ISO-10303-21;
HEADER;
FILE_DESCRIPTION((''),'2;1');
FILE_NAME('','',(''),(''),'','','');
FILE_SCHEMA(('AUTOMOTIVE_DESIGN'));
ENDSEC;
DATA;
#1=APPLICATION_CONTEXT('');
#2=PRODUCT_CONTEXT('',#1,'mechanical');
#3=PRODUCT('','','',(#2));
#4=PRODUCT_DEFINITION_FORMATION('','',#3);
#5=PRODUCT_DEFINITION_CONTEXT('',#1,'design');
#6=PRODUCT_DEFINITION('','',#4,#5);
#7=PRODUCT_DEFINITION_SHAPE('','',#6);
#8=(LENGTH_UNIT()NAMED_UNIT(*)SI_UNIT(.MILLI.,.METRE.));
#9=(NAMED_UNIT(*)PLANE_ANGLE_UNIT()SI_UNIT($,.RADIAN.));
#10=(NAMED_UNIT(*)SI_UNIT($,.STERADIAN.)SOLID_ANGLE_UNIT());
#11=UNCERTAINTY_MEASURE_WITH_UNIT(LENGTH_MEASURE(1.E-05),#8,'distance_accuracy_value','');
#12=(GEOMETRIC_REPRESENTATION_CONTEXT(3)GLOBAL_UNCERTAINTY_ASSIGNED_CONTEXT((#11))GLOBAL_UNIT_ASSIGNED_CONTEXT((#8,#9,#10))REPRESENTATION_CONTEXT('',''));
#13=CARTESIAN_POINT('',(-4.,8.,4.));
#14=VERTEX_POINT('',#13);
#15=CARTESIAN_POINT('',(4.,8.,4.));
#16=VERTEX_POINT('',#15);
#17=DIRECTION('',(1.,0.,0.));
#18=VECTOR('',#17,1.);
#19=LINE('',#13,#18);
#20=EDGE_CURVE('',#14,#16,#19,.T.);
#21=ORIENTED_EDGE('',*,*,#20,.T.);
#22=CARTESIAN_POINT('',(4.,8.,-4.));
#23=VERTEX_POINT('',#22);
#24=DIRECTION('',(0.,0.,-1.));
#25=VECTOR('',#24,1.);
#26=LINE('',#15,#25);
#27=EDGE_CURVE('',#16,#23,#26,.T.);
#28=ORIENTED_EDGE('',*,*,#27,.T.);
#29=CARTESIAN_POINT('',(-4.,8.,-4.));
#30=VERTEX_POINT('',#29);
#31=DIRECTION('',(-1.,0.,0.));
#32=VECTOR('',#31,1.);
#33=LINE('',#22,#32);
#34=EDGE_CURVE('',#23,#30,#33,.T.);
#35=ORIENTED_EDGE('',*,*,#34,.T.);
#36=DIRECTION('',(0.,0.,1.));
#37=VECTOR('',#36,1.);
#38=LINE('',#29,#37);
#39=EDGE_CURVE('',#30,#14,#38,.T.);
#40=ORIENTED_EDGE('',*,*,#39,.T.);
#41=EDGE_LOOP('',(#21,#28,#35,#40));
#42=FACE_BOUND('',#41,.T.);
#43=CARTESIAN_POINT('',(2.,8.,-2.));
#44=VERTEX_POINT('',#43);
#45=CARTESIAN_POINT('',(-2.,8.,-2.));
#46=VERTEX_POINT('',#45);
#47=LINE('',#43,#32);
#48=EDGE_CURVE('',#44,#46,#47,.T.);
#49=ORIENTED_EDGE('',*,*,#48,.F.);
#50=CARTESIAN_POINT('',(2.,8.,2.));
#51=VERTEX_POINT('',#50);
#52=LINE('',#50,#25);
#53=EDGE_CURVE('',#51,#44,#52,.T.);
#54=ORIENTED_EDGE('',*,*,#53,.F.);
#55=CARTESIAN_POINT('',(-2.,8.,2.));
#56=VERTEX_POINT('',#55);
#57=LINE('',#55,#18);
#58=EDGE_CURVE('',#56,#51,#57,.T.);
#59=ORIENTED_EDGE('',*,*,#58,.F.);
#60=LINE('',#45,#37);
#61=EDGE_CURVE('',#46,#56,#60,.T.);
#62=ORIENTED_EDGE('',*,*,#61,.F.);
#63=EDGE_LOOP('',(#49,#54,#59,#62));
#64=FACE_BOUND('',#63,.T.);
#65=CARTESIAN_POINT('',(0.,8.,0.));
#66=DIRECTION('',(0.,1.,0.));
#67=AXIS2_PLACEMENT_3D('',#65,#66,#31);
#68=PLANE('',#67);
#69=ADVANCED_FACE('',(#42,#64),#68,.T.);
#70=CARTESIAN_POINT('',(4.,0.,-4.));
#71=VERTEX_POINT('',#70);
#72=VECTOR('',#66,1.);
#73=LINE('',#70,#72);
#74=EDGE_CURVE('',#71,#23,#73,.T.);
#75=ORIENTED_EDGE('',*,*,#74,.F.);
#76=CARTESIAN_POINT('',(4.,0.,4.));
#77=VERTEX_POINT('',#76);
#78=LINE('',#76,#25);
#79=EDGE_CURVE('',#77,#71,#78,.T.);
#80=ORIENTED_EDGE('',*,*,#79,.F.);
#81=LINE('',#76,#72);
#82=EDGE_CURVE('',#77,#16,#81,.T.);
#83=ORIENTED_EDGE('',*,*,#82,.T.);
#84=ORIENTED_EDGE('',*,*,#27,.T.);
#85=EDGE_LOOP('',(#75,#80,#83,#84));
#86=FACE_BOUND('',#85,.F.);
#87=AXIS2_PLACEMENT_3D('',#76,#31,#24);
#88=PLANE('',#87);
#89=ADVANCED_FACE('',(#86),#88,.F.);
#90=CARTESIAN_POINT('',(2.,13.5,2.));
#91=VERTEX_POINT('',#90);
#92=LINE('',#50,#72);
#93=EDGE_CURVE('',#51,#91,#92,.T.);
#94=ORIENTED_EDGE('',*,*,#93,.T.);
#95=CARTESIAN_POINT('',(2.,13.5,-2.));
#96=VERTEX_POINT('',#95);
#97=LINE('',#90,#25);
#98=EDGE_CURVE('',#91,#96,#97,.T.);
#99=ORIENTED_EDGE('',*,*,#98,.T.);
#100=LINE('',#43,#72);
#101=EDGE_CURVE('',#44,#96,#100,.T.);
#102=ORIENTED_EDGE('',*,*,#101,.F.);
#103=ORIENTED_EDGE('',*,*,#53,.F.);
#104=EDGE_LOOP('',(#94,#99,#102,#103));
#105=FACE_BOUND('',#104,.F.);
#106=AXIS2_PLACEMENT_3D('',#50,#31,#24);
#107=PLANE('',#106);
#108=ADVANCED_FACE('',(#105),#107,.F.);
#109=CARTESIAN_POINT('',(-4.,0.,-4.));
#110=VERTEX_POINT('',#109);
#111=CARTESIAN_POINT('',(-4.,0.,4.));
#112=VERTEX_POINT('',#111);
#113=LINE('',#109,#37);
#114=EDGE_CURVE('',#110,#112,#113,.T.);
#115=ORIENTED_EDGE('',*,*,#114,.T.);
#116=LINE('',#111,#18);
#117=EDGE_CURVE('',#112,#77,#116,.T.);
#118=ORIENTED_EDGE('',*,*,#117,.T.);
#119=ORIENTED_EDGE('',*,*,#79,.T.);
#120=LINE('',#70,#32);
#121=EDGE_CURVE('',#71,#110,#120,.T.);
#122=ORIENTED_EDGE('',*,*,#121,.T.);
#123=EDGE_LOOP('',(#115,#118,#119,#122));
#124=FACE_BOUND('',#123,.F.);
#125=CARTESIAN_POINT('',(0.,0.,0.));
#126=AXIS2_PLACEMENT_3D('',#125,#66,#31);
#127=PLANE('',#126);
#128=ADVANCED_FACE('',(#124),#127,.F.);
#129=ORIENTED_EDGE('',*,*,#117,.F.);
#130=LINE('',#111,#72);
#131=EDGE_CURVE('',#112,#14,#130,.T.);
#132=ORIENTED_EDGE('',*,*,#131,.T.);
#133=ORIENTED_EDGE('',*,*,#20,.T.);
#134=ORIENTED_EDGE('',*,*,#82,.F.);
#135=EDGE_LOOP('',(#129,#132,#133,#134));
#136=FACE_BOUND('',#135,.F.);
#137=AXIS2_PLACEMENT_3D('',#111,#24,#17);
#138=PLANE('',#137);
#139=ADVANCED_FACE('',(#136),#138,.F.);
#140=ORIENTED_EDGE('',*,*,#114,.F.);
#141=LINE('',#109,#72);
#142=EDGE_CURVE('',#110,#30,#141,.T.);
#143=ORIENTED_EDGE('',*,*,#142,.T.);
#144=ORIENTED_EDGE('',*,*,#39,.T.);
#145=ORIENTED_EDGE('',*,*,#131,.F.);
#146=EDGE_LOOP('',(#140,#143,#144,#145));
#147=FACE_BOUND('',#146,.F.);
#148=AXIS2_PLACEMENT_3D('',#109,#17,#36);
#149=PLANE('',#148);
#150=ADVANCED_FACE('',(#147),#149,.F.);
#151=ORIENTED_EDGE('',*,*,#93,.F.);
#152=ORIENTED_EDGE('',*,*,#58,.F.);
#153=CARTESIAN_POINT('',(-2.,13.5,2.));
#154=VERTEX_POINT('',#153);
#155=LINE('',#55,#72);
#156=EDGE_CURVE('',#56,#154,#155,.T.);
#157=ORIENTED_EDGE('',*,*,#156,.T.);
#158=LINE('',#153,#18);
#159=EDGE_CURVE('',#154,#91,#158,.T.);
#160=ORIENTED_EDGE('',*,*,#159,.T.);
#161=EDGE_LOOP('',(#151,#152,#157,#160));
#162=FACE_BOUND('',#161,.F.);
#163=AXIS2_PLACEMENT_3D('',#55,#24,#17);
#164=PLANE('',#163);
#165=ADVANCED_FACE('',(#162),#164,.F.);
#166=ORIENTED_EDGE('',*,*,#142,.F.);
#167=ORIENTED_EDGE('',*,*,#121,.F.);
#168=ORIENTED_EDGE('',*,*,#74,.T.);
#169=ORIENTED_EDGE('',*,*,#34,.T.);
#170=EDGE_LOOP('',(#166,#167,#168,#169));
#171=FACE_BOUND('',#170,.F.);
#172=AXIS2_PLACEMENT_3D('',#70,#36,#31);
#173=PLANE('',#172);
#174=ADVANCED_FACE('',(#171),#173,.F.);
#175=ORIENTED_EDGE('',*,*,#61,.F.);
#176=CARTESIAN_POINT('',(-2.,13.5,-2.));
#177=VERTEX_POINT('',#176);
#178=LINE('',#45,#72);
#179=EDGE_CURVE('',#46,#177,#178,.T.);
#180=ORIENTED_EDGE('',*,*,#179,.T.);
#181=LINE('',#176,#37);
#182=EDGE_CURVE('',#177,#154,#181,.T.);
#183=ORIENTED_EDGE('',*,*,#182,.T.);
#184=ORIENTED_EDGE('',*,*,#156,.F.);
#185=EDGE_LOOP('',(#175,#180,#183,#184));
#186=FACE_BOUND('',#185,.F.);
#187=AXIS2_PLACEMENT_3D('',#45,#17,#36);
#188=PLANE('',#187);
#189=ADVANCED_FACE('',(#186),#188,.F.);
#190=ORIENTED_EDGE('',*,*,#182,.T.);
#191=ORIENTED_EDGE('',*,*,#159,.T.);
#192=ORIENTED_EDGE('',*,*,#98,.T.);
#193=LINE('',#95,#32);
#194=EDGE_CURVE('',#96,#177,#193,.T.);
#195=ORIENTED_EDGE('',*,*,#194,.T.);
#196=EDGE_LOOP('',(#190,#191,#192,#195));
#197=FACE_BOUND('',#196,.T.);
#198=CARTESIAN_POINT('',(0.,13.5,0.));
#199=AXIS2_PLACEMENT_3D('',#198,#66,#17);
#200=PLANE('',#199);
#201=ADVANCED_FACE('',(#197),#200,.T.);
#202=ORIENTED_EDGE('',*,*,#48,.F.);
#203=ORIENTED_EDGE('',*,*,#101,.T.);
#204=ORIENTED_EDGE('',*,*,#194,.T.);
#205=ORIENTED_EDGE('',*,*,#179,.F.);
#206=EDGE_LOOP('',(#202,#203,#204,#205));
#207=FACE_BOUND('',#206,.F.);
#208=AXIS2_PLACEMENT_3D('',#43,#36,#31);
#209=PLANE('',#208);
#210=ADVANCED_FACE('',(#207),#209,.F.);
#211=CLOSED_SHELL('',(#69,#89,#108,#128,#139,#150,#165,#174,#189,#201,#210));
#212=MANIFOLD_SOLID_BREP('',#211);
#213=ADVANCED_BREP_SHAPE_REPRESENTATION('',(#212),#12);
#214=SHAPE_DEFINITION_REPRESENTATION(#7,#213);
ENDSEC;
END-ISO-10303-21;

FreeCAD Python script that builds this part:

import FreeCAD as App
import Part
import Sketcher
from FreeCAD import Vector

doc = App.newDocument("Part")
body = doc.addObject("PartDesign::Body", "Body")

# Sketch on XZ plane
sketch1 = body.newObject("Sketcher::SketchObject", "Sketch")
sketch1.AttachmentSupport = (doc.getObject("XZ_Plane"), [""])
sketch1.MapMode = "FlatFace"
sketch1.addGeometry(Part.LineSegment(Vector(-4, -4, 0), Vector(-4, 4, 0)), False)
sketch1.addGeometry(Part.LineSegment(Vector(-4, 4, 0), Vector(4, 4, 0)), False)
sketch1.addGeometry(Part.LineSegment(Vector(4, 4, 0), Vector(4, -4, 0)), False)
sketch1.addGeometry(Part.LineSegment(Vector(4, -4, 0), Vector(-4, -4, 0)), False)
sketch1.addConstraint(Sketcher.Constraint("Coincident", 0, 2, 1, 1))
sketch1.addConstraint(Sketcher.Constraint("Coincident", 1, 2, 2, 1))
sketch1.addConstraint(Sketcher.Constraint("Coincident", 2, 2, 3, 1))
sketch1.addConstraint(Sketcher.Constraint("Coincident", 3, 2, 0, 1))
sketch1.addConstraint(Sketcher.Constraint("Vertical", 0))
sketch1.addConstraint(Sketcher.Constraint("Horizontal", 1))
sketch1.addConstraint(Sketcher.Constraint("Vertical", 2))
sketch1.addConstraint(Sketcher.Constraint("Horizontal", 3))
sketch1.addConstraint(Sketcher.Constraint("Symmetric", 0, 2, 2, 2, -1, 1))
sketch1.addConstraint(Sketcher.Constraint("Equal", 3, 0))
sketch1.addConstraint(Sketcher.Constraint("DistanceX", 1, 1, 1, 2, 8.0))
pad1 = body.newObject("PartDesign::Pad", "Pad")
pad1.Profile = sketch1
pad1.Length = 8
pad1.Reversed = True

# Sketch on XZ plane
sketch2 = body.newObject("Sketcher::SketchObject", "Sketch001")
sketch2.AttachmentSupport = (doc.getObject("XZ_Plane"), [""])
sketch2.MapMode = "FlatFace"
sketch2.AttachmentOffset = App.Placement(Vector(0, 0, -8), App.Rotation())
sketch2.addGeometry(Part.LineSegment(Vector(-2, -2, 0), Vector(-2, 2, 0)), False)
sketch2.addGeometry(Part.LineSegment(Vector(-2, 2, 0), Vector(2, 2, 0)), False)
sketch2.addGeometry(Part.LineSegment(Vector(2, 2, 0), Vector(2, -2, 0)), False)
sketch2.addGeometry(Part.LineSegment(Vector(2, -2, 0), Vector(-2, -2, 0)), False)
sketch2.addConstraint(Sketcher.Constraint("Coincident", 0, 2, 1, 1))
sketch2.addConstraint(Sketcher.Constraint("Coincident", 1, 2, 2, 1))
sketch2.addConstraint(Sketcher.Constraint("Coincident", 2, 2, 3, 1))
sketch2.addConstraint(Sketcher.Constraint("Coincident", 3, 2, 0, 1))
sketch2.addConstraint(Sketcher.Constraint("Vertical", 0))
sketch2.addConstraint(Sketcher.Constraint("Horizontal", 1))
sketch2.addConstraint(Sketcher.Constraint("Vertical", 2))
sketch2.addConstraint(Sketcher.Constraint("Horizontal", 3))
sketch2.addConstraint(Sketcher.Constraint("Symmetric", 0, 2, 2, 2, -1, 1))
sketch2.addConstraint(Sketcher.Constraint("Equal", 3, 0))
sketch2.addConstraint(Sketcher.Constraint("DistanceX", 1, 1, 1, 2, 4.0))
pad2 = body.newObject("PartDesign::Pad", "Pad001")
pad2.Profile = sketch2
pad2.Length = 5.5
pad2.Reversed = True

doc.recompute()
